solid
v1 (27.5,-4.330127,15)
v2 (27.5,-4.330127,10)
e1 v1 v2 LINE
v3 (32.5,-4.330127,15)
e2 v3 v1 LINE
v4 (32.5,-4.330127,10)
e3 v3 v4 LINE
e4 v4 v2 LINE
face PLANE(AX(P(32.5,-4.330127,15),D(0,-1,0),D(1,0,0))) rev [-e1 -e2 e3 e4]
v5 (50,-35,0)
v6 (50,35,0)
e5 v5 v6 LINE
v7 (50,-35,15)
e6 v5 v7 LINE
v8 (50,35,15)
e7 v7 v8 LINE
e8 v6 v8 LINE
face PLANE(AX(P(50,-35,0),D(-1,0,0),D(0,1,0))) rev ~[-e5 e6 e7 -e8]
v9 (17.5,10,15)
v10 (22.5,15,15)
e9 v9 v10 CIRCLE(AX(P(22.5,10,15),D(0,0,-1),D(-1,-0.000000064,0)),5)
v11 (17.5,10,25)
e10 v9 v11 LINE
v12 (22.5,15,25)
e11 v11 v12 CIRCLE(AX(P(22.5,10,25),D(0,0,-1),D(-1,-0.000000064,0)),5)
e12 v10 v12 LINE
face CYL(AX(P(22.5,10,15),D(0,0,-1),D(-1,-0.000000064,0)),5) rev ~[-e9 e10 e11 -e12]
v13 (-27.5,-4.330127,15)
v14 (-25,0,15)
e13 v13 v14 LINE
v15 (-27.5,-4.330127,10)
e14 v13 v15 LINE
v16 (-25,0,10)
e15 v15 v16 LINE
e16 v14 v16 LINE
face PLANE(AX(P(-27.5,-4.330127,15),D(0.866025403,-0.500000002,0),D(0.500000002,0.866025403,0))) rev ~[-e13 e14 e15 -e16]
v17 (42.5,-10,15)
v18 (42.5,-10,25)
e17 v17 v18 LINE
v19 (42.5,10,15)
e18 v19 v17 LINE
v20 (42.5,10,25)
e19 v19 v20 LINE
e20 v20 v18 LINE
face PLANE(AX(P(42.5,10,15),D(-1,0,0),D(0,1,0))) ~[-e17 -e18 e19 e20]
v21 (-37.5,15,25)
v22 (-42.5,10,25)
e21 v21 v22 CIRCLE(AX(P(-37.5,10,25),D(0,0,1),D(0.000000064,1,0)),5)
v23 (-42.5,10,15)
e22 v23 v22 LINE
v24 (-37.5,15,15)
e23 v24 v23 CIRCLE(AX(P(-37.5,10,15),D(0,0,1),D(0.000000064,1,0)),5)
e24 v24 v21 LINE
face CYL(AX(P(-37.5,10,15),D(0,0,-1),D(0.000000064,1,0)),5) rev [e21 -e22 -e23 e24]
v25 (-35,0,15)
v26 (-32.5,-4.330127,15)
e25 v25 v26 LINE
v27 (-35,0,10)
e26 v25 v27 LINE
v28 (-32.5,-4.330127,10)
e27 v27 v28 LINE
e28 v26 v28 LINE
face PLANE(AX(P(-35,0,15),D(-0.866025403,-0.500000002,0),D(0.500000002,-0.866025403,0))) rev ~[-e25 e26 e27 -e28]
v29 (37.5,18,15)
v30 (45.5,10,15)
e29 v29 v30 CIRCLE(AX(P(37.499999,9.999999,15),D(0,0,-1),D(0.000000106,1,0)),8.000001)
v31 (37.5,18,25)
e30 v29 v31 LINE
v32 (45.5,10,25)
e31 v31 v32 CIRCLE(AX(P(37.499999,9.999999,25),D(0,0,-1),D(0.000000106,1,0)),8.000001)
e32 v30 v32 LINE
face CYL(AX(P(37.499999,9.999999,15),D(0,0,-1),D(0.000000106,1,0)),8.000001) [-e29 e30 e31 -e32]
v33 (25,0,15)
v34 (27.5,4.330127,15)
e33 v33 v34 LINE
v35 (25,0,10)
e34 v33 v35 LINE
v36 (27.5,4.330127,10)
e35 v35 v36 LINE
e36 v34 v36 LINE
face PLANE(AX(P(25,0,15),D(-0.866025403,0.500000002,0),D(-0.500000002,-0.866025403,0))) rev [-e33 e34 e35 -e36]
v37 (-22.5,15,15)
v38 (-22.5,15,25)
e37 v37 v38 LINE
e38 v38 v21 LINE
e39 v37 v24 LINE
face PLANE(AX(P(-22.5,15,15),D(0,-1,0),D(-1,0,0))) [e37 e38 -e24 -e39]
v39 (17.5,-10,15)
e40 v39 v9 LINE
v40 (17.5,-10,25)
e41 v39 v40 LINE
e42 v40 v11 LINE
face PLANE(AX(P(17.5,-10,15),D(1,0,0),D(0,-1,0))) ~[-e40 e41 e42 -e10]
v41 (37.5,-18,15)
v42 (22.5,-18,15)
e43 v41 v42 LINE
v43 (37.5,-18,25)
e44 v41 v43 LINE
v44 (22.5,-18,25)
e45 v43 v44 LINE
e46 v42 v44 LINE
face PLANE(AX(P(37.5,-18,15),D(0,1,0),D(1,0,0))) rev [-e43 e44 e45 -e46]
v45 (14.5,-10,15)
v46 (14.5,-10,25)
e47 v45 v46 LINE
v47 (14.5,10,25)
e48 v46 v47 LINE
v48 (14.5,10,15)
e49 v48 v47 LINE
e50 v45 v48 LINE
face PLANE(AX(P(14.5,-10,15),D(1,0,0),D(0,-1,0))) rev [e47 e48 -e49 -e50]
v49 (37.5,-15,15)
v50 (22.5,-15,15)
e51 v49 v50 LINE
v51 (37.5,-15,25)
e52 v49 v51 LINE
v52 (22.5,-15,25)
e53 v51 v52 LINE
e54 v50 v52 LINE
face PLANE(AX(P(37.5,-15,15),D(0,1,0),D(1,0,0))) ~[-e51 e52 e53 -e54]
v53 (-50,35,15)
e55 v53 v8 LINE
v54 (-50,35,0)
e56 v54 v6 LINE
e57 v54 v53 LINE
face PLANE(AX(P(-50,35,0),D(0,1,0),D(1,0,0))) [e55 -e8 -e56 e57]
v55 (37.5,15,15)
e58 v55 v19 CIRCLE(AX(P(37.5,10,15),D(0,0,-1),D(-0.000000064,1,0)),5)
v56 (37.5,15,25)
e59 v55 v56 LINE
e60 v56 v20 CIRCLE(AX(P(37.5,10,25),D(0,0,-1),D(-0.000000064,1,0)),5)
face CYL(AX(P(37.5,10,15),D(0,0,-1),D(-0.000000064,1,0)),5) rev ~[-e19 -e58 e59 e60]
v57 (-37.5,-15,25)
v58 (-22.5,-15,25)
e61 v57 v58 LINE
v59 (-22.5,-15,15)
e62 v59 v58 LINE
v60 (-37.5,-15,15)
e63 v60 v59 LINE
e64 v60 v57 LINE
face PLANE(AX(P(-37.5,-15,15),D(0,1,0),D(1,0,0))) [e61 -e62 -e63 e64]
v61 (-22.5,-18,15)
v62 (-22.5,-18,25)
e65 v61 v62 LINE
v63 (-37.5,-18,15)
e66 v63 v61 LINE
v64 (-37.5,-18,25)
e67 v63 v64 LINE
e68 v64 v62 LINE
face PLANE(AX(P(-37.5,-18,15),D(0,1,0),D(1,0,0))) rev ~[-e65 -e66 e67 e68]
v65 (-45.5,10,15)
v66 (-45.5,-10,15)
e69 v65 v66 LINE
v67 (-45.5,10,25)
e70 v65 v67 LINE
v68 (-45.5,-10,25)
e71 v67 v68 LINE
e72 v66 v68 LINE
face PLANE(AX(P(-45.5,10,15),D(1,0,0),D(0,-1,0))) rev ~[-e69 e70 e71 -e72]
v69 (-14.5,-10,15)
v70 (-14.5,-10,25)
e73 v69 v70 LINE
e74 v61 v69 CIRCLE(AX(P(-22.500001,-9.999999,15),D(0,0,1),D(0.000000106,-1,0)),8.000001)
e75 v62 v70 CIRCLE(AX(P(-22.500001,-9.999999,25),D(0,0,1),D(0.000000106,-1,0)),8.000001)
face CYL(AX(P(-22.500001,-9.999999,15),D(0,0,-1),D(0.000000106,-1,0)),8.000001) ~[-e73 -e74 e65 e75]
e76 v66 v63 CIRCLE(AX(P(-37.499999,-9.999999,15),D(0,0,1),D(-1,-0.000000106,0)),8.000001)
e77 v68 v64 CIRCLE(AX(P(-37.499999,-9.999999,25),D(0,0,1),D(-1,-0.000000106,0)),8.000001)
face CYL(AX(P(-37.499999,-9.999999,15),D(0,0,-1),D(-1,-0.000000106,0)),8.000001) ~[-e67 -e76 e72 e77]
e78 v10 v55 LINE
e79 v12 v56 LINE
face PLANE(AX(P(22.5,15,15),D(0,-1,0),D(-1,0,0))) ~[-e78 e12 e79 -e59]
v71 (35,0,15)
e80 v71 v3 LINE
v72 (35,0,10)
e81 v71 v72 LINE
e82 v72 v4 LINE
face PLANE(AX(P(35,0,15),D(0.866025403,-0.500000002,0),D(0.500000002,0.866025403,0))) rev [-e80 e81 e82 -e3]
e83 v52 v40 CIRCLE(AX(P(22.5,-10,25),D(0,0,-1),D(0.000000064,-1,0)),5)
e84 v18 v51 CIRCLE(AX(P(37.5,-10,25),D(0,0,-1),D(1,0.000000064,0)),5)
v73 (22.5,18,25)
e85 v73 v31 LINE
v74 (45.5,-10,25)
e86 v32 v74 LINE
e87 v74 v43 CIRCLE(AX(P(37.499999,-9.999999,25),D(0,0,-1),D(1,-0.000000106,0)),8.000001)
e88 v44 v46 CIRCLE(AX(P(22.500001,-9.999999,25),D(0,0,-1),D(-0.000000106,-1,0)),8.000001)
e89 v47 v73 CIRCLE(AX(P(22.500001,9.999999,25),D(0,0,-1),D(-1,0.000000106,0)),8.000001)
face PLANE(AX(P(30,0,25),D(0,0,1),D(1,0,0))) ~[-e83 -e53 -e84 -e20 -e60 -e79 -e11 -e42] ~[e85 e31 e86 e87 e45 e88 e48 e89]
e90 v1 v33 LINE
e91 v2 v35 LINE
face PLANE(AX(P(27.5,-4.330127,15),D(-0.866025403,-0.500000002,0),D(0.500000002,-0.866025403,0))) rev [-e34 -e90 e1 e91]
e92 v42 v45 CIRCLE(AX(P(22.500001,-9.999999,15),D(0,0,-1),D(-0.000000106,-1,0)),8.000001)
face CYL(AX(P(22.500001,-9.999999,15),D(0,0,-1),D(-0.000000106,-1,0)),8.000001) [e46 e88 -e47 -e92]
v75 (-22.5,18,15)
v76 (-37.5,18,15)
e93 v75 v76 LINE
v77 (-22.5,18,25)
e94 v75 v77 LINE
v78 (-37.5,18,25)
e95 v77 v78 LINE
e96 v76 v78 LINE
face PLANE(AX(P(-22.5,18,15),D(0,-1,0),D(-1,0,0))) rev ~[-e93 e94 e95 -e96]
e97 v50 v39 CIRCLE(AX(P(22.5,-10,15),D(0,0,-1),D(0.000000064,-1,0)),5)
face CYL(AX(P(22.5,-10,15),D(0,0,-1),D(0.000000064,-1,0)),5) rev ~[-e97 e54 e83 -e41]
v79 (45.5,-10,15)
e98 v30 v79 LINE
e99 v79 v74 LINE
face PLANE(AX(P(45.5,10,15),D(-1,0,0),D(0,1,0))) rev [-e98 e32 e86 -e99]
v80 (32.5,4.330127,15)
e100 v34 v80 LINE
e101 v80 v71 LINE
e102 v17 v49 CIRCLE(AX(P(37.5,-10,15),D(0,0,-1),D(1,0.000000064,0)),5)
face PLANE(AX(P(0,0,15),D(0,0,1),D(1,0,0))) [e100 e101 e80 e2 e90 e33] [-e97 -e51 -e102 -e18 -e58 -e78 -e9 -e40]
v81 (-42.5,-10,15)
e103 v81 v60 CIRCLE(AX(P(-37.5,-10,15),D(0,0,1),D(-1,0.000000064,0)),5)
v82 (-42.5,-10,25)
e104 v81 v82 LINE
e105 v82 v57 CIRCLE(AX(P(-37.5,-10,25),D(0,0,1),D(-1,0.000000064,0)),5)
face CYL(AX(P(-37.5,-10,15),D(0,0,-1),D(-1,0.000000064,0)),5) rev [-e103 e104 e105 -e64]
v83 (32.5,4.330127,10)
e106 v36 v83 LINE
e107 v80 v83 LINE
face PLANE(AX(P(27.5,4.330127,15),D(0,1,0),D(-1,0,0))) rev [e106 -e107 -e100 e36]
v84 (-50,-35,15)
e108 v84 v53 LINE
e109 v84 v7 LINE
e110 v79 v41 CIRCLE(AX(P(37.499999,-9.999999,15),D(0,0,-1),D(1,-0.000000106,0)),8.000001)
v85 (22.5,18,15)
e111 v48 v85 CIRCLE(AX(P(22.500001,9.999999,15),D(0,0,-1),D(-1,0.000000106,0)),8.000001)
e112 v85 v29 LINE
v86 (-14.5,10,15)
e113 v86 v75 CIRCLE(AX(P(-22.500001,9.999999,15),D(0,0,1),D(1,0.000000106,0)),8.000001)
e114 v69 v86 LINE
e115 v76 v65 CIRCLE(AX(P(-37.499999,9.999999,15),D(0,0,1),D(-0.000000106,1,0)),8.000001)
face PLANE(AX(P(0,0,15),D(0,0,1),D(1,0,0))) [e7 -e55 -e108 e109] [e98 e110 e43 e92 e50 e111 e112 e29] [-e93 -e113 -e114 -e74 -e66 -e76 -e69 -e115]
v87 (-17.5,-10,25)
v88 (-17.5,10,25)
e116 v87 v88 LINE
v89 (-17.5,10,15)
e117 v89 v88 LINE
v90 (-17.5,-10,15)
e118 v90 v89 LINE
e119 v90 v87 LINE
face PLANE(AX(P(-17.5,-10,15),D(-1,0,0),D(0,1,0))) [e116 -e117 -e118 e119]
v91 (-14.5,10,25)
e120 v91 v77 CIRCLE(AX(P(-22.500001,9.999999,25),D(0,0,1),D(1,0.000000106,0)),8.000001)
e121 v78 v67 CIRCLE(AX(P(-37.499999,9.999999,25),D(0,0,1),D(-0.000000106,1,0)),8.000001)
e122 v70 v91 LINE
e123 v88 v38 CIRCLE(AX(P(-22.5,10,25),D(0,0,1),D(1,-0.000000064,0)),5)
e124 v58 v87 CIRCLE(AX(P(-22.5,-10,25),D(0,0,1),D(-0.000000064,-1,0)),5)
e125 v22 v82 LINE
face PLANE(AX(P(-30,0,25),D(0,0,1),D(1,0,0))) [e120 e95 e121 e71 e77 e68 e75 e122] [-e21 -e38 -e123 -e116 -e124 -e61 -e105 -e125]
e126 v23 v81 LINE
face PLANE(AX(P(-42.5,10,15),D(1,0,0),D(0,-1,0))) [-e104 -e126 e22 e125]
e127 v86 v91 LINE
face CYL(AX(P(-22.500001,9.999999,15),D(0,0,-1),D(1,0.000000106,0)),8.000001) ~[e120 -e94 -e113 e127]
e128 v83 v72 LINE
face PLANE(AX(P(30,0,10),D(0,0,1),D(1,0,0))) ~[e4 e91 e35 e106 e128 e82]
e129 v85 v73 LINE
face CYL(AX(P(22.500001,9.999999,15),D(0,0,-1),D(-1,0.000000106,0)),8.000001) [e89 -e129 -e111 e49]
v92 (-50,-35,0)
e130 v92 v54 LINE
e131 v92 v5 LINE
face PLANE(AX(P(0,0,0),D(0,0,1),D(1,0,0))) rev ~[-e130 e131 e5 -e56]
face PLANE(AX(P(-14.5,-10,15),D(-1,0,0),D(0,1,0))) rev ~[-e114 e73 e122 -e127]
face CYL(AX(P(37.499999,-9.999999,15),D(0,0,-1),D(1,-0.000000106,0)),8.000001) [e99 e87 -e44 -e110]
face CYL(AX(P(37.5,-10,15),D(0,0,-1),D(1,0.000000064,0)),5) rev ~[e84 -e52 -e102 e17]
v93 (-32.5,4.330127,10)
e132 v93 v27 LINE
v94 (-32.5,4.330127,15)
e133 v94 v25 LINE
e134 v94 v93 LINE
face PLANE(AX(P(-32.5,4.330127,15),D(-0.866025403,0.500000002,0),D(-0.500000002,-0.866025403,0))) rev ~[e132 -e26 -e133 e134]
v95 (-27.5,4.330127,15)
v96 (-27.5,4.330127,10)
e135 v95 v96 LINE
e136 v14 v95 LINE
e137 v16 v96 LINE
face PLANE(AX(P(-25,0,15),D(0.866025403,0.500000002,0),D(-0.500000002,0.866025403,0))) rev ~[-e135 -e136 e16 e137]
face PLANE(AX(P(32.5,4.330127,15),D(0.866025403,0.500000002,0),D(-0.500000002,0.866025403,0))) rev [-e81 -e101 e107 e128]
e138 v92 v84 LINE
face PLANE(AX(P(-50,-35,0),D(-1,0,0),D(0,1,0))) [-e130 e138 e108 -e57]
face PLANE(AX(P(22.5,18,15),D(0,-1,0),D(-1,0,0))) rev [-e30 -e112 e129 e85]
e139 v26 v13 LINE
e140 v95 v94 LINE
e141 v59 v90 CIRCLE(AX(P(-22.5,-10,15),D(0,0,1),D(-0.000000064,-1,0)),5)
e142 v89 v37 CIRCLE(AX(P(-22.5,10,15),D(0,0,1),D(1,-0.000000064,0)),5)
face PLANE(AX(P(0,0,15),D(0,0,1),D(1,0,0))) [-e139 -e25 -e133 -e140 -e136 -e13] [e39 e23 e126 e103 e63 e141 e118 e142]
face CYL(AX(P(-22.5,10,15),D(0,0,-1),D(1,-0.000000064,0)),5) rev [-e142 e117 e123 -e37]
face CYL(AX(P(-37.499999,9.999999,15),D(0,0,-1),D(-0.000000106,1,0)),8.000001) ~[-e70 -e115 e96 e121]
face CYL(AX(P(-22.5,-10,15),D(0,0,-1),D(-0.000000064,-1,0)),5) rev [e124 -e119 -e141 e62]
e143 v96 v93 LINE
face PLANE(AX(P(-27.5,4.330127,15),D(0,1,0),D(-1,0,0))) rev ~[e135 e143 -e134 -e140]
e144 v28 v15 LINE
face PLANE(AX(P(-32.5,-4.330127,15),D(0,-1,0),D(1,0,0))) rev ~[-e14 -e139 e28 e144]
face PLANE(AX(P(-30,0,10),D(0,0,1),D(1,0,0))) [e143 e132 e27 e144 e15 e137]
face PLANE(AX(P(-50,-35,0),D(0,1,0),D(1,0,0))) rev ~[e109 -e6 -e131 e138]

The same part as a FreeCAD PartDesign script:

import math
import FreeCAD as App
import Part
import Sketcher
from FreeCAD import Vector
Q = App.Units.Quantity

doc = App.newDocument("Part")
body = doc.addObject("PartDesign::Body", "Body")

# Sketch on XY plane
sketch1 = body.newObject("Sketcher::SketchObject", "Sketch")
sketch1.AttachmentSupport = (doc.getObject("XY_Plane"), [""])
sketch1.MapMode = "FlatFace"
sketch1.addGeometry([
    Part.LineSegment(Vector(-50, 35, 0), Vector(-50, -35, 0)),
    Part.LineSegment(Vector(-50, -35, 0), Vector(50, -35, 0)),
    Part.LineSegment(Vector(50, -35, 0), Vector(50, 35, 0)),
    Part.LineSegment(Vector(50, 35, 0), Vector(-50, 35, 0)),
], False)
sketch1.addConstraint([
    Sketcher.Constraint("Coincident", 0, 2, 1, 1),
    Sketcher.Constraint("Coincident", 1, 2, 2, 1),
    Sketcher.Constraint("Coincident", 2, 2, 3, 1),
    Sketcher.Constraint("Coincident", 3, 2, 0, 1),
    Sketcher.Constraint("Vertical", 0),
    Sketcher.Constraint("Horizontal", 1),
    Sketcher.Constraint("Vertical", 2),
    Sketcher.Constraint("Horizontal", 3),
    Sketcher.Constraint("Symmetric", 0, 2, 2, 2, -1, 1),
    Sketcher.Constraint("DistanceX", 1, 1, 1, 2, 100.0),
    Sketcher.Constraint("DistanceY", 0, 2, 0, 1, 70.0),
])
pad1 = body.newObject("PartDesign::Pad", "Pad")
pad1.Profile = sketch1
pad1.Length = 15

# Sketch on XY plane
sketch2 = body.newObject("Sketcher::SketchObject", "Sketch001")
sketch2.AttachmentSupport = (doc.getObject("XY_Plane"), [""])
sketch2.MapMode = "FlatFace"
sketch2.AttachmentOffset = App.Placement(Vector(0, 0, 15), App.Rotation())
sketch2.addGeometry([
    Part.LineSegment(Vector(-37.5, -18, 0), Vector(-22.5, -18, 0)),  # 0
    Part.ArcOfCircle(Part.Circle(Vector(-22.500001, -9.999999, 0), Vector(0, 0, 1), 8.000001), math.radians(-89.999994), math.radians(-0.000006)),  # 1
    Part.LineSegment(Vector(-14.5, -10, 0), Vector(-14.5, 10, 0)),  # 2
    Part.ArcOfCircle(Part.Circle(Vector(-22.500001, 9.999999, 0), Vector(0, 0, 1), 8.000001), math.radians(0.000006), math.radians(89.999994)),  # 3
    Part.LineSegment(Vector(-22.5, 18, 0), Vector(-37.5, 18, 0)),  # 4
    Part.ArcOfCircle(Part.Circle(Vector(-37.499999, 9.999999, 0), Vector(0, 0, 1), 8.000001), math.radians(90.000006), math.radians(179.999994)),  # 5
    Part.LineSegment(Vector(-45.5, 10, 0), Vector(-45.5, -10, 0)),  # 6
    Part.ArcOfCircle(Part.Circle(Vector(-37.499999, -9.999999, 0), Vector(0, 0, 1), 8.000001), math.radians(-179.999994), math.radians(-90.000006)),  # 7
    Part.LineSegment(Vector(-22.5, -15, 0), Vector(-37.5, -15, 0)),  # 8
    Part.ArcOfCircle(Part.Circle(Vector(-37.5, -10, 0), Vector(0, 0, 1), 5), math.radians(179.999996), math.radians(270.000004)),  # 9
    Part.LineSegment(Vector(-42.5, -10, 0), Vector(-42.5, 10, 0)),  # 10
    Part.ArcOfCircle(Part.Circle(Vector(-37.5, 10, 0), Vector(0, 0, 1), 5), math.radians(89.999996), math.radians(180.000004)),  # 11
    Part.LineSegment(Vector(-37.5, 15, 0), Vector(-22.5, 15, 0)),  # 12
    Part.ArcOfCircle(Part.Circle(Vector(-22.5, 10, 0), Vector(0, 0, 1), 5), math.radians(-0.000004), math.radians(90.000004)),  # 13
    Part.LineSegment(Vector(-17.5, 10, 0), Vector(-17.5, -10, 0)),  # 14
    Part.ArcOfCircle(Part.Circle(Vector(-22.5, -10, 0), Vector(0, 0, 1), 5), math.radians(-90.000004), math.radians(0.000004)),  # 15
], False)
sketch2.addConstraint([
    Sketcher.Constraint("Tangent", 0, 2, 1, 1),
    Sketcher.Constraint("Tangent", 1, 2, 2, 1),
    Sketcher.Constraint("Tangent", 2, 2, 3, 1),
    Sketcher.Constraint("Tangent", 3, 2, 4, 1),
    Sketcher.Constraint("Tangent", 4, 2, 5, 1),
    Sketcher.Constraint("Tangent", 5, 2, 6, 1),
    Sketcher.Constraint("Tangent", 6, 2, 7, 1),
    Sketcher.Constraint("Tangent", 7, 2, 0, 1),
    Sketcher.Constraint("Tangent", 8, 2, 9, 2),
    Sketcher.Constraint("Tangent", 9, 1, 10, 1),
    Sketcher.Constraint("Tangent", 10, 2, 11, 2),
    Sketcher.Constraint("Tangent", 11, 1, 12, 1),
    Sketcher.Constraint("Tangent", 12, 2, 13, 2),
    Sketcher.Constraint("Tangent", 13, 1, 14, 1),
    Sketcher.Constraint("Tangent", 14, 2, 15, 2),
    Sketcher.Constraint("Tangent", 15, 1, 8, 1),
    Sketcher.Constraint("Horizontal", 0),
    Sketcher.Constraint("Vertical", 2),
    Sketcher.Constraint("Horizontal", 4),
    Sketcher.Constraint("Vertical", 6),
    Sketcher.Constraint("Horizontal", 8),
    Sketcher.Constraint("Vertical", 10),
    Sketcher.Constraint("Horizontal", 12),
    Sketcher.Constraint("Vertical", 14),
    Sketcher.Constraint("Coincident", 9, 3, 7, 3),
    Sketcher.Constraint("Coincident", 11, 3, 5, 3),
    Sketcher.Constraint("Coincident", 13, 3, 3, 3),
    Sketcher.Constraint("Equal", 1, 3),
    Sketcher.Constraint("Equal", 3, 5),
    Sketcher.Constraint("Equal", 5, 7),
    Sketcher.Constraint("Equal", 13, 15),
    Sketcher.Constraint("Radius", 1, 8.000001),
    Sketcher.Constraint("Radius", 9, 5.0),
    Sketcher.Constraint("DistanceX", 0, 1, 0, 2, 15.0),
    Sketcher.Constraint("DistanceY", 2, 1, 2, 2, 20.0),
    Sketcher.Constraint("DistanceY", 1, 3, -1, 1, 9.999999),
    Sketcher.Constraint("DistanceX", 1, 3, -1, 1, 22.500001),
])
pad2 = body.newObject("PartDesign::Pad", "Pad001")
pad2.Profile = sketch2
pad2.Length = 10

# Sketch on XY plane
sketch3 = body.newObject("Sketcher::SketchObject", "Sketch002")
sketch3.AttachmentSupport = (doc.getObject("XY_Plane"), [""])
sketch3.MapMode = "FlatFace"
sketch3.AttachmentOffset = App.Placement(Vector(0, 0, 15), App.Rotation())
sketch3.addGeometry([
    Part.LineSegment(Vector(-25, 0, 0), Vector(-27.5, 4.330127, 0)),  # 0
    Part.LineSegment(Vector(-27.5, 4.330127, 0), Vector(-32.5, 4.330127, 0)),  # 1
    Part.LineSegment(Vector(-32.5, 4.330127, 0), Vector(-35, 0, 0)),  # 2
    Part.LineSegment(Vector(-35, 0, 0), Vector(-32.5, -4.330127, 0)),  # 3
    Part.LineSegment(Vector(-32.5, -4.330127, 0), Vector(-27.5, -4.330127, 0)),  # 4
    Part.LineSegment(Vector(-27.5, -4.330127, 0), Vector(-25, 0, 0)),  # 5
], False)
sketch3.addConstraint([
    Sketcher.Constraint("Coincident", 0, 2, 1, 1),
    Sketcher.Constraint("Coincident", 1, 2, 2, 1),
    Sketcher.Constraint("Coincident", 2, 2, 3, 1),
    Sketcher.Constraint("Coincident", 3, 2, 4, 1),
    Sketcher.Constraint("Coincident", 4, 2, 5, 1),
    Sketcher.Constraint("Coincident", 5, 2, 0, 1),
    Sketcher.Constraint("Horizontal", 1),
    Sketcher.Constraint("Horizontal", 4),
    Sketcher.Constraint("Symmetric", 1, 2, 3, 2, -1),
    Sketcher.Constraint("PointOnObject", 2, 2, -1),
    Sketcher.Constraint("PointOnObject", 5, 2, -1),
    Sketcher.Constraint("Parallel", 0, 3),
    Sketcher.Constraint("Parallel", 2, 5),
    Sketcher.Constraint("DistanceX", 1, 2, 1, 1, 5.0),
    Sketcher.Constraint("Angle", 0, Q("120 deg")),
    Sketcher.Constraint("Distance", 0, 5.0),
    Sketcher.Constraint("DistanceX", 2, 2, -1, 1, 35.0),
])
pocket1 = body.newObject("PartDesign::Pocket", "Pocket")
pocket1.Profile = sketch3
pocket1.Length = 5
doc.recompute()

mirrored = body.newObject("PartDesign::Mirrored", "Mirrored")
mirrored.Originals = [pad2, pocket1]
mirrored.MirrorPlane = (doc.getObject("YZ_Plane"), [""])
body.Tip = mirrored

doc.recompute()
